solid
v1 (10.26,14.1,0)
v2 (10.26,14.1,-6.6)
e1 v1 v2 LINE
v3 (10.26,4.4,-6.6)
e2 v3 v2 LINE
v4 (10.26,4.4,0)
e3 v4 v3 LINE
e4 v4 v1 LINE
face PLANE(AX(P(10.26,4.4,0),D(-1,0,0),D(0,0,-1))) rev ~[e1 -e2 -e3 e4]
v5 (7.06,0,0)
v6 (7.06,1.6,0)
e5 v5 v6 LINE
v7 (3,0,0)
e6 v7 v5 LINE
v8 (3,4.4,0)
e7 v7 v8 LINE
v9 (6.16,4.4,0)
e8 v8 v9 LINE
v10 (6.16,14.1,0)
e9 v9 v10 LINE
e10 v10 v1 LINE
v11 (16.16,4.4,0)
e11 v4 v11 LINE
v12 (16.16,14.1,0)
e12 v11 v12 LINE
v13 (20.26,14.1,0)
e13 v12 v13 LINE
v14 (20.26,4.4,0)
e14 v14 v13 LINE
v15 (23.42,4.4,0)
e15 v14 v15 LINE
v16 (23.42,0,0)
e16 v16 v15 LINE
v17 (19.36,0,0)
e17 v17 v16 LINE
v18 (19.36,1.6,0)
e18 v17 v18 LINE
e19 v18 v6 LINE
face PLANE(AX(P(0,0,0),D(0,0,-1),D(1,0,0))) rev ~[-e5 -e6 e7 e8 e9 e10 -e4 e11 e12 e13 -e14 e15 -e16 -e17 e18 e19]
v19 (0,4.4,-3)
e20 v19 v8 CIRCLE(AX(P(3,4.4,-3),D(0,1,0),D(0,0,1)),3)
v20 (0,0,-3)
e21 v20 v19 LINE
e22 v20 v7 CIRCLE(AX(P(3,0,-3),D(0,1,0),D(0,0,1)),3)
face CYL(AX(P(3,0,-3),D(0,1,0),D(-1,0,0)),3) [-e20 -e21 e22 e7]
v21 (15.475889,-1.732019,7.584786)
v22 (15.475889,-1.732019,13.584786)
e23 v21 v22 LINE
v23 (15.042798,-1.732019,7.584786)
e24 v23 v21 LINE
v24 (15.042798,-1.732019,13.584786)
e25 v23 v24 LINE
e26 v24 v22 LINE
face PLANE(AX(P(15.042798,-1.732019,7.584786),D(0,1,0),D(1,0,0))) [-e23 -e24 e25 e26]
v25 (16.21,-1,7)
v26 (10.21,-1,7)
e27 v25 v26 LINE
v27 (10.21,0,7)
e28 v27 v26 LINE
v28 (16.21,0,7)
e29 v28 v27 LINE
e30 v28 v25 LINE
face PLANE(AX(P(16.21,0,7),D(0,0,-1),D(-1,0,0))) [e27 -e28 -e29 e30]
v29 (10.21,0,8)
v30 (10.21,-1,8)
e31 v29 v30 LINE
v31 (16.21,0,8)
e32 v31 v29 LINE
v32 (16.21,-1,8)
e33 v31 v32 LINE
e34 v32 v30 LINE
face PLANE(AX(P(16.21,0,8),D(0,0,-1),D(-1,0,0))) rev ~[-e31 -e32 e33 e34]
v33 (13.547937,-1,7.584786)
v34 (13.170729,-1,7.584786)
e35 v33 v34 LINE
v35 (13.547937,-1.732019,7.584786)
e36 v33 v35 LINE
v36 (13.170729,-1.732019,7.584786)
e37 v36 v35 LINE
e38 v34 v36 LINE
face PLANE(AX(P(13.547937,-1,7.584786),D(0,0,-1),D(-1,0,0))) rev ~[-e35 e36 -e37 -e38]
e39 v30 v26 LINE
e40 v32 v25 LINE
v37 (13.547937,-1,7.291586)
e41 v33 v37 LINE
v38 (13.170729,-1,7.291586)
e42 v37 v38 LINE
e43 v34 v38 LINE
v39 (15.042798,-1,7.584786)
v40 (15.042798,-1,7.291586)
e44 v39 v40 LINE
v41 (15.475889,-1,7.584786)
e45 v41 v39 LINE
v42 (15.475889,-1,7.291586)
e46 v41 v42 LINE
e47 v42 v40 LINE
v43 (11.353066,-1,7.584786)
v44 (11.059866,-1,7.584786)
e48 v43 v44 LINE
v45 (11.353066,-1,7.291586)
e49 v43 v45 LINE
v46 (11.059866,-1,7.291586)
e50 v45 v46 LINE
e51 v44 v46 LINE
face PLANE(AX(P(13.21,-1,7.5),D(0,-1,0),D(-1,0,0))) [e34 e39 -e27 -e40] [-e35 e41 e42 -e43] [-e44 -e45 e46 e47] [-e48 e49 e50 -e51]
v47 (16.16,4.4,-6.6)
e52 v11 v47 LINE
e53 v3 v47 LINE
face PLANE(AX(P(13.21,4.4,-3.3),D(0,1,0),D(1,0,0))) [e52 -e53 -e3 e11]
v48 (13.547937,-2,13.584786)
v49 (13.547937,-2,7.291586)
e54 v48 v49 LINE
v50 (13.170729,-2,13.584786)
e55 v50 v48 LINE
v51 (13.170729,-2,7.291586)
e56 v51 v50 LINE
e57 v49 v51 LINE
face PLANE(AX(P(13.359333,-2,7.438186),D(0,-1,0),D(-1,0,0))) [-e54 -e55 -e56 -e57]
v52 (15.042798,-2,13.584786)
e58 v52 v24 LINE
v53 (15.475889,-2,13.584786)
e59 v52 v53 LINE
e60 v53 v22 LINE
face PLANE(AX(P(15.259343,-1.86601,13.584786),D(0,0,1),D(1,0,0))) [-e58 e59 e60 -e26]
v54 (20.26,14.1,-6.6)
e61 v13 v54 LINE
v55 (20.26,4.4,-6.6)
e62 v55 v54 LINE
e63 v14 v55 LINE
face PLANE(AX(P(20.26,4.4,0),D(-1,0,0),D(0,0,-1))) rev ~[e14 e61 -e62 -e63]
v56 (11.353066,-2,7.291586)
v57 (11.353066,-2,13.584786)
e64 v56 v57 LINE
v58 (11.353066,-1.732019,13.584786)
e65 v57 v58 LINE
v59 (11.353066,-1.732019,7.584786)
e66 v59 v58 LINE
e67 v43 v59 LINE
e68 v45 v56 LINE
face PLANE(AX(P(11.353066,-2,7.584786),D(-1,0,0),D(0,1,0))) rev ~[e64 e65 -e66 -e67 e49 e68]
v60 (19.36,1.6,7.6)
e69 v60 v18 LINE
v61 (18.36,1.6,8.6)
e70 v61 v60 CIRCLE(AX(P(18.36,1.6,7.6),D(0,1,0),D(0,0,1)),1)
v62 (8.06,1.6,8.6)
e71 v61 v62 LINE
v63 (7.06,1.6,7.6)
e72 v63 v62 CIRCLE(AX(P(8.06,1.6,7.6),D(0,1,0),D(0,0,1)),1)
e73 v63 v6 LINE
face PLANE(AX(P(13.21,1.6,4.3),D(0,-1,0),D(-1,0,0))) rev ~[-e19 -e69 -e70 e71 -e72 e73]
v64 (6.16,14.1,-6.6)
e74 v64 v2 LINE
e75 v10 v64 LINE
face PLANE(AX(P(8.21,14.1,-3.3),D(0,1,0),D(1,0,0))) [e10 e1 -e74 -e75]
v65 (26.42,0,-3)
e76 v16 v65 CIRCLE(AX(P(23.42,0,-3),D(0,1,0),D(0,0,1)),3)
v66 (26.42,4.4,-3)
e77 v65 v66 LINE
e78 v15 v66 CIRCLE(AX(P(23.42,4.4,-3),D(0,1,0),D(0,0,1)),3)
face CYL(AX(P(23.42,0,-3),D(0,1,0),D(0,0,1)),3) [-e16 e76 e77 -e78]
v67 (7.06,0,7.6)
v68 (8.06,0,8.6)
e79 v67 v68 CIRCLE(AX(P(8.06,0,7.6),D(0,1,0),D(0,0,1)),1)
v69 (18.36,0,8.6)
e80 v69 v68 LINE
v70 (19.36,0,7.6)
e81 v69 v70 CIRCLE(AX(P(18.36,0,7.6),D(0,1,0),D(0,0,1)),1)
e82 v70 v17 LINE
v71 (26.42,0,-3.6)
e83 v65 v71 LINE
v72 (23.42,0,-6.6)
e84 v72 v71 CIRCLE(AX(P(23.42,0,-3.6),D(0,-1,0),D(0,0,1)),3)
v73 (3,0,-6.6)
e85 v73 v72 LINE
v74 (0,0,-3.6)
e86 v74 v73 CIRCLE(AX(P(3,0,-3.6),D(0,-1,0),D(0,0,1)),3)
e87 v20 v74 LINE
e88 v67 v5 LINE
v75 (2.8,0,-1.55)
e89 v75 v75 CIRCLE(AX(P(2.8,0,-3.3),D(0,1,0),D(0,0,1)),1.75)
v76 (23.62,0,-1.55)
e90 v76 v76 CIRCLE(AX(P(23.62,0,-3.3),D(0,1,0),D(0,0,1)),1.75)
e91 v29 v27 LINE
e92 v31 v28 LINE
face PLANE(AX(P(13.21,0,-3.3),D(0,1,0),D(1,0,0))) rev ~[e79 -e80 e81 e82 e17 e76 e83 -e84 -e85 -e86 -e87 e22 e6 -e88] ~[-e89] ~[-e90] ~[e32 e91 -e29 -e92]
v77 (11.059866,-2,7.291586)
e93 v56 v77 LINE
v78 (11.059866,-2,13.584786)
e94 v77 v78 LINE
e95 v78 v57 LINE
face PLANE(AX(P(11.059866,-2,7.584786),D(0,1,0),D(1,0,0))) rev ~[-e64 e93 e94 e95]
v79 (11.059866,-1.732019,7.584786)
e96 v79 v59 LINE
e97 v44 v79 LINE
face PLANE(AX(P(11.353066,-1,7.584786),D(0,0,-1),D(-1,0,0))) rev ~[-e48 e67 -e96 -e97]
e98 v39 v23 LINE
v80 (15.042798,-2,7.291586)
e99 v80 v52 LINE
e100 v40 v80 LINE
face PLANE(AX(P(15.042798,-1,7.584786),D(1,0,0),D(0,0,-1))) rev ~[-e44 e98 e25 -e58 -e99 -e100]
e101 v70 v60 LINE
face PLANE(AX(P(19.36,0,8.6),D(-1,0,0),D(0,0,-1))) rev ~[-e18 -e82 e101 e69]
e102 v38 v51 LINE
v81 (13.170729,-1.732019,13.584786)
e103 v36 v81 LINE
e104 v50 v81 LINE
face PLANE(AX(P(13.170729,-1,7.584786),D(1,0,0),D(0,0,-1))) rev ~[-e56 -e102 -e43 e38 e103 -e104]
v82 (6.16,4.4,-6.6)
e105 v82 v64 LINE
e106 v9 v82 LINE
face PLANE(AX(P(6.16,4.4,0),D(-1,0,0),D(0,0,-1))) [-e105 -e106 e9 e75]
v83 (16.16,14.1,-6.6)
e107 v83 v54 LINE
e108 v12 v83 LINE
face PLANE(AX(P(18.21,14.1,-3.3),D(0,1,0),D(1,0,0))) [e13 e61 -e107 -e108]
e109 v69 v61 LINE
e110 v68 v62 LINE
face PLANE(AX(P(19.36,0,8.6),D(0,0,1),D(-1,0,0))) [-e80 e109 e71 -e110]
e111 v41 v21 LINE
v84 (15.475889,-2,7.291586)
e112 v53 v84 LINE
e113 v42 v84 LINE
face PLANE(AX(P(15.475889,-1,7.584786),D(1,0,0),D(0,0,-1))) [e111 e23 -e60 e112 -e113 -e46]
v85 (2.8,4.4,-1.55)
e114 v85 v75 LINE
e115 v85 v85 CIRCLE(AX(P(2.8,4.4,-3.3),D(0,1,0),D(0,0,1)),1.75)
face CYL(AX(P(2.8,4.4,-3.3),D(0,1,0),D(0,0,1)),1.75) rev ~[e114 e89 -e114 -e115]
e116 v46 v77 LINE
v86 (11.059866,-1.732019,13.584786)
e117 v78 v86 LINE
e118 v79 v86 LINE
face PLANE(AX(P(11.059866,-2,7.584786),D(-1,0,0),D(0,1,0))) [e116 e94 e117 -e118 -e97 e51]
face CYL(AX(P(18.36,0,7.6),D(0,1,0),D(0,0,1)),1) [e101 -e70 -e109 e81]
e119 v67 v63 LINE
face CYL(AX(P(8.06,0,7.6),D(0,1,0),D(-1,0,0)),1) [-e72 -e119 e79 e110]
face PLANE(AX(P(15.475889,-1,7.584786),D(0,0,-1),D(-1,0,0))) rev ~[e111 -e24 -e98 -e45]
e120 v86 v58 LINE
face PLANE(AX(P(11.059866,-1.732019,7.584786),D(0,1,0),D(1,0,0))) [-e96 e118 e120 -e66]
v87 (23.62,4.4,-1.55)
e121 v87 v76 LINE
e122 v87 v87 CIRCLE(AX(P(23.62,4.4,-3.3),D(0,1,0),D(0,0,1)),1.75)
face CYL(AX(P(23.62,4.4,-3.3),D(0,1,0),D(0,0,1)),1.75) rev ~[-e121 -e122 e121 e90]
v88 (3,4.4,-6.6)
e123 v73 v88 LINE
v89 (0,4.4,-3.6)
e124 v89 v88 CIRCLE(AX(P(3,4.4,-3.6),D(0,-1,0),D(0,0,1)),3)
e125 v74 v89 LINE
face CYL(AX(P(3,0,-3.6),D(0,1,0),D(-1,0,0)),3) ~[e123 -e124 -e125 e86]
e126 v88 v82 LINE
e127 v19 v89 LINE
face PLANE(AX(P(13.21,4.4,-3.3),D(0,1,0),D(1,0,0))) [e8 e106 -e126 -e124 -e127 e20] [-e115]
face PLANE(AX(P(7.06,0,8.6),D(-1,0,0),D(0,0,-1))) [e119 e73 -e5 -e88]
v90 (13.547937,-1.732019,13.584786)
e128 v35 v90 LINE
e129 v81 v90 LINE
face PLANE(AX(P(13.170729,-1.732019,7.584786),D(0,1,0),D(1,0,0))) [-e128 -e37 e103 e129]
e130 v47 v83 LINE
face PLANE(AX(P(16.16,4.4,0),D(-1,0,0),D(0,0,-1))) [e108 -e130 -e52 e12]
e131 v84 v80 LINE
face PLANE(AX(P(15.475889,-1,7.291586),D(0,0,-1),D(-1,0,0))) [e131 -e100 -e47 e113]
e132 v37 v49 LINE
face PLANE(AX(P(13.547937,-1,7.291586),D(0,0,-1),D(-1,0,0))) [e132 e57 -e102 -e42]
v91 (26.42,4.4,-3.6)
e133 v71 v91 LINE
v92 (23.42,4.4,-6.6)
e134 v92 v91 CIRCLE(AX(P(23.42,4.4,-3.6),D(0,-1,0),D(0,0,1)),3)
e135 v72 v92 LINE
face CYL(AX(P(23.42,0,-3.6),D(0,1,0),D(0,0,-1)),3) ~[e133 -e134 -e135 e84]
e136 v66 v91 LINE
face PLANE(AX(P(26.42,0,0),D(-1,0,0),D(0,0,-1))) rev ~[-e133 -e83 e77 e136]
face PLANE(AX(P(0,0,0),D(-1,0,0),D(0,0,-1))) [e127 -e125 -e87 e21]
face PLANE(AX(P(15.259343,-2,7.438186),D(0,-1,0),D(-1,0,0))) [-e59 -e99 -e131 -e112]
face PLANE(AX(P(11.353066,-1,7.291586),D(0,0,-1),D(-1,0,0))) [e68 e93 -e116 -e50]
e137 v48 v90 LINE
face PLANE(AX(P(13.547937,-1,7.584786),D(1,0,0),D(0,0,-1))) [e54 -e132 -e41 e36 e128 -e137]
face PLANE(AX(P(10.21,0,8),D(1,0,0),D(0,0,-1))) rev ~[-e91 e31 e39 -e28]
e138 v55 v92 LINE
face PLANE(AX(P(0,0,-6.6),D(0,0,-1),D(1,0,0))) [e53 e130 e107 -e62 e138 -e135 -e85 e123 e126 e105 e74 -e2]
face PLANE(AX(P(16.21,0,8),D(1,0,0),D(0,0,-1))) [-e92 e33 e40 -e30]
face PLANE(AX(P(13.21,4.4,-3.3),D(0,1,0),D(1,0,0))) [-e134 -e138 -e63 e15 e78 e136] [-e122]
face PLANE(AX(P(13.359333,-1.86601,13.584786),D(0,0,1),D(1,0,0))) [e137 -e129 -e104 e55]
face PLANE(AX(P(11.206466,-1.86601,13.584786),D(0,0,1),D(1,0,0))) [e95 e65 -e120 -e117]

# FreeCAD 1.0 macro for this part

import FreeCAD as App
import Part
import Sketcher
Q = App.Units.Quantity


def edges_at(feature, points):
    """Names of the edges that pass closest to the given points."""
    edges = feature.Shape.Edges
    near = lambda p: min(range(len(edges)), key=lambda i: edges[i].distToShape(Part.Vertex(*p))[0])
    return sorted({f"Edge{near(p) + 1}" for p in points})


def add_polygon(sketch, points):
    """Adds a closed chain of lines whose ends are joined by coincident constraints."""
    first, n = sketch.GeometryCount, len(points)
    for a, b in zip(points, points[1:] + points[:1]):
        sketch.addGeometry(Part.LineSegment(App.Vector(*a, 0), App.Vector(*b, 0)), False)
    for i in range(n):
        sketch.addConstraint(Sketcher.Constraint("Coincident", first + i, 2, first + (i + 1) % n, 1))

doc = App.newDocument("Part")
params = doc.addObject("Spreadsheet::Sheet", "Params")
for row, (alias, value) in enumerate([
    ("sketch1_height", "6.6 mm"),
    ("sketch1_width", "26.42 mm"),
    ("pad1_length", "4.4 mm"),
    ("sketch2_width", "12.3 mm"),
    ("sketch2_height", "8.6 mm"),
    ("pad2_length", "1.6 mm"),
    ("sketch3_width", "4.1 mm"),
    ("sketch3_height", "6.6 mm"),
    ("pad3_length", "9.7 mm"),
    ("fillet_radius", "3 mm"),
    ("fillet2_radius", "1 mm"),
    ("sketch4_width", "6 mm"),
    ("sketch4_height", "1 mm"),
    ("pad4_length", "1 mm"),
    ("pad5_length", "1 mm"),
    ("pad6_length", "6 mm"),
    ("sketch7_diameter", "3.5 mm"),
    ("pocket1_length", "6 mm"),
], start=1):
    params.set(f"A{row}", alias)
    params.set(f"B{row}", "=" + value)
    params.setAlias(f"B{row}", alias)

body = doc.addObject("PartDesign::Body", "Body")

sketch1 = doc.addObject("Sketcher::SketchObject", "Sketch")
body.addObject(sketch1)
sketch1.AttachmentSupport = (doc.XZ_Plane, [""])
sketch1.MapMode = "FlatFace"
add_polygon(sketch1, [(0, -6.6), (0, 0), (26.42, 0), (26.42, -6.6)])
sketch1.addConstraint([
    Sketcher.Constraint("Vertical", 0),
    Sketcher.Constraint("Horizontal", 1),
    Sketcher.Constraint("Vertical", 2),
    Sketcher.Constraint("Horizontal", 3),
    Sketcher.Constraint("Coincident", 0, 2, -1, 1),
    Sketcher.Constraint("DistanceY", 0, 1, 0, 2, Q("6.6 mm")),
    Sketcher.Constraint("DistanceX", 1, 1, 1, 2, Q("26.42 mm")),
])
sketch1.setExpression("Constraints[9]", "Params.sketch1_height")
sketch1.setExpression("Constraints[10]", "Params.sketch1_width")
pad1 = doc.addObject("PartDesign::Pad", "Pad")
body.addObject(pad1)
pad1.Profile = sketch1
pad1.setExpression("Length", "Params.pad1_length")
pad1.Reversed = True

sketch2 = doc.addObject("Sketcher::SketchObject", "Sketch001")
body.addObject(sketch2)
sketch2.AttachmentSupport = (doc.XZ_Plane, [""])
sketch2.MapMode = "FlatFace"
add_polygon(sketch2, [(19.36, 0), (19.36, 8.6), (7.06, 8.6), (7.06, 0)])
sketch2.addConstraint([
    Sketcher.Constraint("Vertical", 0),
    Sketcher.Constraint("Horizontal", 1),
    Sketcher.Constraint("Vertical", 2),
    Sketcher.Constraint("Horizontal", 3),
    Sketcher.Constraint("PointOnObject", 2, 2, -1),
    Sketcher.Constraint("DistanceX", 1, 2, 1, 1, Q("12.3 mm")),
    Sketcher.Constraint("DistanceY", 0, 1, 0, 2, Q("8.6 mm")),
    Sketcher.Constraint("DistanceX", -1, 1, 0, 2, Q("19.36 mm")),
])
sketch2.setExpression("Constraints[9]", "Params.sketch2_width")
sketch2.setExpression("Constraints[10]", "Params.sketch2_height")
pad2 = doc.addObject("PartDesign::Pad", "Pad001")
body.addObject(pad2)
pad2.Profile = sketch2
pad2.setExpression("Length", "Params.pad2_length")
pad2.Reversed = True

sketch3 = doc.addObject("Sketcher::SketchObject", "Sketch002")
body.addObject(sketch3)
sketch3.AttachmentSupport = (doc.XZ_Plane, [""])
sketch3.MapMode = "FlatFace"
sketch3.AttachmentOffset = App.Placement(App.Vector(0, 0, -4.4), App.Rotation())
add_polygon(sketch3, [(6.16, -6.6), (6.16, 0), (10.26, 0), (10.26, -6.6)])
add_polygon(sketch3, [(16.16, -6.6), (16.16, 0), (20.26, 0), (20.26, -6.6)])
sketch3.addConstraint([
    Sketcher.Constraint("Vertical", 0),
    Sketcher.Constraint("Horizontal", 1),
    Sketcher.Constraint("Vertical", 2),
    Sketcher.Constraint("Horizontal", 3),
    Sketcher.Constraint("Vertical", 4),
    Sketcher.Constraint("Horizontal", 5),
    Sketcher.Constraint("Vertical", 6),
    Sketcher.Constraint("Horizontal", 7),
    Sketcher.Constraint("PointOnObject", 0, 2, -1),
    Sketcher.Constraint("PointOnObject", 4, 2, -1),
    Sketcher.Constraint("Horizontal", 3, 2, 6, 2),
    Sketcher.Constraint("Equal", 3, 5),
    Sketcher.Constraint("DistanceX", 1, 1, 1, 2, Q("4.1 mm")),
    Sketcher.Constraint("DistanceY", 0, 1, 0, 2, Q("6.6 mm")),
    Sketcher.Constraint("DistanceX", 0, 2, 4, 2, Q("10 mm")),
    Sketcher.Constraint("DistanceX", -1, 1, 0, 2, Q("6.16 mm")),
])
sketch3.setExpression("Constraints[20]", "Params.sketch3_width")
sketch3.setExpression("Constraints[21]", "Params.sketch3_height")
pad3 = doc.addObject("PartDesign::Pad", "Pad002")
body.addObject(pad3)
pad3.Profile = sketch3
pad3.setExpression("Length", "Params.pad3_length")
pad3.Reversed = True
doc.recompute()

fillet = doc.addObject("PartDesign::Fillet", "Fillet")
body.addObject(fillet)
fillet.Base = (pad3, edges_at(pad3, [
    (0, 2.2, -6.6),
    (26.42, 2.2, -6.6),
    (26.42, 2.2, 0),
    (0, 2.2, 0),
]))
fillet.setExpression("Radius", "Params.fillet_radius")
doc.recompute()

fillet2 = doc.addObject("PartDesign::Fillet", "Fillet001")
body.addObject(fillet2)
fillet2.Base = (fillet, edges_at(fillet, [(7.06, 0.8, 8.6), (19.36, 0.8, 8.6)]))
fillet2.setExpression("Radius", "Params.fillet2_radius")

sketch4 = doc.addObject("Sketcher::SketchObject", "Sketch003")
body.addObject(sketch4)
sketch4.AttachmentSupport = (doc.XZ_Plane, [""])
sketch4.MapMode = "FlatFace"
add_polygon(sketch4, [(16.21, 7), (16.21, 8), (10.21, 8), (10.21, 7)])
sketch4.addConstraint([
    Sketcher.Constraint("Vertical", 0),
    Sketcher.Constraint("Horizontal", 1),
    Sketcher.Constraint("Vertical", 2),
    Sketcher.Constraint("Horizontal", 3),
    Sketcher.Constraint("DistanceX", 1, 2, 1, 1, Q("6 mm")),
    Sketcher.Constraint("DistanceY", 0, 1, 0, 2, Q("1 mm")),
    Sketcher.Constraint("DistanceY", -1, 1, 0, 2, Q("8 mm")),
    Sketcher.Constraint("DistanceX", -1, 1, 0, 2, Q("16.21 mm")),
])
sketch4.setExpression("Constraints[8]", "Params.sketch4_width")
sketch4.setExpression("Constraints[9]", "Params.sketch4_height")
pad4 = doc.addObject("PartDesign::Pad", "Pad003")
body.addObject(pad4)
pad4.Profile = sketch4
pad4.setExpression("Length", "Params.pad4_length")

sketch5 = doc.addObject("Sketcher::SketchObject", "Sketch004")
body.addObject(sketch5)
sketch5.AttachmentSupport = (doc.XZ_Plane, [""])
sketch5.MapMode = "FlatFace"
sketch5.AttachmentOffset = App.Placement(App.Vector(0, 0, 1), App.Rotation())
add_polygon(sketch5, [(11.353066, 7.291586), (11.353066, 7.584786), (11.059866, 7.584786), (11.059866, 7.291586)])
add_polygon(sketch5, [(13.547937, 7.291586), (13.547937, 7.584786), (13.170729, 7.584786), (13.170729, 7.291586)])
add_polygon(sketch5, [(15.475889, 7.291586), (15.475889, 7.584786), (15.042798, 7.584786), (15.042798, 7.291586)])
sketch5.addConstraint([
    Sketcher.Constraint("Vertical", 0),
    Sketcher.Constraint("Horizontal", 1),
    Sketcher.Constraint("Vertical", 2),
    Sketcher.Constraint("Horizontal", 3),
    Sketcher.Constraint("Vertical", 4),
    Sketcher.Constraint("Horizontal", 5),
    Sketcher.Constraint("Vertical", 6),
    Sketcher.Constraint("Horizontal", 7),
    Sketcher.Constraint("Vertical", 8),
    Sketcher.Constraint("Horizontal", 9),
    Sketcher.Constraint("Vertical", 10),
    Sketcher.Constraint("Horizontal", 11),
    Sketcher.Constraint("Horizontal", 1, 2, 4, 2),
    Sketcher.Constraint("Horizontal", 3, 2, 6, 2),
    Sketcher.Constraint("Horizontal", 5, 2, 8, 2),
    Sketcher.Constraint("Horizontal", 7, 2, 10, 2),
    Sketcher.Constraint("Equal", 3, 0),
    Sketcher.Constraint("DistanceX", 1, 2, 1, 1, Q("0.2932 mm")),
    Sketcher.Constraint("DistanceX", 5, 2, 5, 1, Q("0.377208 mm")),
    Sketcher.Constraint("DistanceX", 9, 2, 9, 1, Q("0.433091 mm")),
    Sketcher.Constraint("DistanceX", -1, 1, 9, 2, Q("15.042798 mm")),
    Sketcher.Constraint("DistanceX", -1, 1, 5, 2, Q("13.170729 mm")),
    Sketcher.Constraint("DistanceX", 0, 2, 4, 2, Q("2.194871 mm")),
    Sketcher.Constraint("DistanceY", -1, 1, 0, 2, Q("7.584786 mm")),
])
pad5 = doc.addObject("PartDesign::Pad", "Pad004")
body.addObject(pad5)
pad5.Profile = sketch5
pad5.setExpression("Length", "Params.pad5_length")

sketch6 = doc.addObject("Sketcher::SketchObject", "Sketch005")
body.addObject(sketch6)
sketch6.AttachmentSupport = (doc.XY_Plane, [""])
sketch6.MapMode = "FlatFace"
sketch6.AttachmentOffset = App.Placement(App.Vector(0, 0, 7.584786), App.Rotation())
add_polygon(sketch6, [(11.059866, -1.732019), (11.059866, -2), (11.353066, -2), (11.353066, -1.732019)])
add_polygon(sketch6, [(13.170729, -1.732019), (13.170729, -2), (13.547937, -2), (13.547937, -1.732019)])
add_polygon(sketch6, [(15.042798, -1.732019), (15.042798, -2), (15.475889, -2), (15.475889, -1.732019)])
sketch6.addConstraint([
    Sketcher.Constraint("Vertical", 0),
    Sketcher.Constraint("Horizontal", 1),
    Sketcher.Constraint("Vertical", 2),
    Sketcher.Constraint("Horizontal", 3),
    Sketcher.Constraint("Vertical", 4),
    Sketcher.Constraint("Horizontal", 5),
    Sketcher.Constraint("Vertical", 6),
    Sketcher.Constraint("Horizontal", 7),
    Sketcher.Constraint("Vertical", 8),
    Sketcher.Constraint("Horizontal", 9),
    Sketcher.Constraint("Vertical", 10),
    Sketcher.Constraint("Horizontal", 11),
    Sketcher.Constraint("Horizontal", 1, 2, 4, 2),
    Sketcher.Constraint("Horizontal", 3, 2, 6, 2),
    Sketcher.Constraint("Horizontal", 5, 2, 8, 2),
    Sketcher.Constraint("Horizontal", 7, 2, 10, 2),
    Sketcher.Constraint("DistanceY", 0, 2, -1, 1, Q("2 mm")),
    Sketcher.Constraint("DistanceX", 1, 1, 1, 2, Q("0.2932 mm")),
    Sketcher.Constraint("DistanceX", 5, 1, 5, 2, Q("0.377208 mm")),
    Sketcher.Constraint("DistanceX", 9, 1, 9, 2, Q("0.433091 mm")),
    Sketcher.Constraint("DistanceY", 0, 2, 0, 1, Q("0.267981 mm")),
    Sketcher.Constraint("DistanceX", -1, 1, 8, 2, Q("15.042798 mm")),
    Sketcher.Constraint("DistanceX", -1, 1, 4, 2, Q("13.170729 mm")),
    Sketcher.Constraint("DistanceX", 1, 2, 5, 2, Q("2.194871 mm")),
])
pad6 = doc.addObject("PartDesign::Pad", "Pad005")
body.addObject(pad6)
pad6.Profile = sketch6
pad6.setExpression("Length", "Params.pad6_length")

sketch7 = doc.addObject("Sketcher::SketchObject", "Sketch006")
body.addObject(sketch7)
sketch7.AttachmentSupport = (doc.XZ_Plane, [""])
sketch7.MapMode = "FlatFace"
sketch7.AttachmentOffset = App.Placement(App.Vector(0, 0, -4.4), App.Rotation())
sketch7.addGeometry([
    Part.Circle(App.Vector(2.8, -3.3, 0), App.Vector(0, 0, 1), 1.75),
    Part.Circle(App.Vector(23.62, -3.3, 0), App.Vector(0, 0, 1), 1.75),
], False)
sketch7.addConstraint([
    Sketcher.Constraint("Equal", 0, 1),
    Sketcher.Constraint("Horizontal", 0, 3, 1, 3),
    Sketcher.Constraint("Diameter", 0, Q("3.5 mm")),
    Sketcher.Constraint("DistanceX", -1, 1, 0, 3, Q("2.8 mm")),
    Sketcher.Constraint("DistanceY", 0, 3, -1, 1, Q("3.3 mm")),
    Sketcher.Constraint("DistanceX", -1, 1, 1, 3, Q("23.62 mm")),
])
sketch7.setExpression("Constraints[2]", "Params.sketch7_diameter")
pocket1 = doc.addObject("PartDesign::Pocket", "Pocket")
body.addObject(pocket1)
pocket1.Profile = sketch7
pocket1.setExpression("Length", "Params.pocket1_length")
pocket1.Reversed = True

doc.recompute()
